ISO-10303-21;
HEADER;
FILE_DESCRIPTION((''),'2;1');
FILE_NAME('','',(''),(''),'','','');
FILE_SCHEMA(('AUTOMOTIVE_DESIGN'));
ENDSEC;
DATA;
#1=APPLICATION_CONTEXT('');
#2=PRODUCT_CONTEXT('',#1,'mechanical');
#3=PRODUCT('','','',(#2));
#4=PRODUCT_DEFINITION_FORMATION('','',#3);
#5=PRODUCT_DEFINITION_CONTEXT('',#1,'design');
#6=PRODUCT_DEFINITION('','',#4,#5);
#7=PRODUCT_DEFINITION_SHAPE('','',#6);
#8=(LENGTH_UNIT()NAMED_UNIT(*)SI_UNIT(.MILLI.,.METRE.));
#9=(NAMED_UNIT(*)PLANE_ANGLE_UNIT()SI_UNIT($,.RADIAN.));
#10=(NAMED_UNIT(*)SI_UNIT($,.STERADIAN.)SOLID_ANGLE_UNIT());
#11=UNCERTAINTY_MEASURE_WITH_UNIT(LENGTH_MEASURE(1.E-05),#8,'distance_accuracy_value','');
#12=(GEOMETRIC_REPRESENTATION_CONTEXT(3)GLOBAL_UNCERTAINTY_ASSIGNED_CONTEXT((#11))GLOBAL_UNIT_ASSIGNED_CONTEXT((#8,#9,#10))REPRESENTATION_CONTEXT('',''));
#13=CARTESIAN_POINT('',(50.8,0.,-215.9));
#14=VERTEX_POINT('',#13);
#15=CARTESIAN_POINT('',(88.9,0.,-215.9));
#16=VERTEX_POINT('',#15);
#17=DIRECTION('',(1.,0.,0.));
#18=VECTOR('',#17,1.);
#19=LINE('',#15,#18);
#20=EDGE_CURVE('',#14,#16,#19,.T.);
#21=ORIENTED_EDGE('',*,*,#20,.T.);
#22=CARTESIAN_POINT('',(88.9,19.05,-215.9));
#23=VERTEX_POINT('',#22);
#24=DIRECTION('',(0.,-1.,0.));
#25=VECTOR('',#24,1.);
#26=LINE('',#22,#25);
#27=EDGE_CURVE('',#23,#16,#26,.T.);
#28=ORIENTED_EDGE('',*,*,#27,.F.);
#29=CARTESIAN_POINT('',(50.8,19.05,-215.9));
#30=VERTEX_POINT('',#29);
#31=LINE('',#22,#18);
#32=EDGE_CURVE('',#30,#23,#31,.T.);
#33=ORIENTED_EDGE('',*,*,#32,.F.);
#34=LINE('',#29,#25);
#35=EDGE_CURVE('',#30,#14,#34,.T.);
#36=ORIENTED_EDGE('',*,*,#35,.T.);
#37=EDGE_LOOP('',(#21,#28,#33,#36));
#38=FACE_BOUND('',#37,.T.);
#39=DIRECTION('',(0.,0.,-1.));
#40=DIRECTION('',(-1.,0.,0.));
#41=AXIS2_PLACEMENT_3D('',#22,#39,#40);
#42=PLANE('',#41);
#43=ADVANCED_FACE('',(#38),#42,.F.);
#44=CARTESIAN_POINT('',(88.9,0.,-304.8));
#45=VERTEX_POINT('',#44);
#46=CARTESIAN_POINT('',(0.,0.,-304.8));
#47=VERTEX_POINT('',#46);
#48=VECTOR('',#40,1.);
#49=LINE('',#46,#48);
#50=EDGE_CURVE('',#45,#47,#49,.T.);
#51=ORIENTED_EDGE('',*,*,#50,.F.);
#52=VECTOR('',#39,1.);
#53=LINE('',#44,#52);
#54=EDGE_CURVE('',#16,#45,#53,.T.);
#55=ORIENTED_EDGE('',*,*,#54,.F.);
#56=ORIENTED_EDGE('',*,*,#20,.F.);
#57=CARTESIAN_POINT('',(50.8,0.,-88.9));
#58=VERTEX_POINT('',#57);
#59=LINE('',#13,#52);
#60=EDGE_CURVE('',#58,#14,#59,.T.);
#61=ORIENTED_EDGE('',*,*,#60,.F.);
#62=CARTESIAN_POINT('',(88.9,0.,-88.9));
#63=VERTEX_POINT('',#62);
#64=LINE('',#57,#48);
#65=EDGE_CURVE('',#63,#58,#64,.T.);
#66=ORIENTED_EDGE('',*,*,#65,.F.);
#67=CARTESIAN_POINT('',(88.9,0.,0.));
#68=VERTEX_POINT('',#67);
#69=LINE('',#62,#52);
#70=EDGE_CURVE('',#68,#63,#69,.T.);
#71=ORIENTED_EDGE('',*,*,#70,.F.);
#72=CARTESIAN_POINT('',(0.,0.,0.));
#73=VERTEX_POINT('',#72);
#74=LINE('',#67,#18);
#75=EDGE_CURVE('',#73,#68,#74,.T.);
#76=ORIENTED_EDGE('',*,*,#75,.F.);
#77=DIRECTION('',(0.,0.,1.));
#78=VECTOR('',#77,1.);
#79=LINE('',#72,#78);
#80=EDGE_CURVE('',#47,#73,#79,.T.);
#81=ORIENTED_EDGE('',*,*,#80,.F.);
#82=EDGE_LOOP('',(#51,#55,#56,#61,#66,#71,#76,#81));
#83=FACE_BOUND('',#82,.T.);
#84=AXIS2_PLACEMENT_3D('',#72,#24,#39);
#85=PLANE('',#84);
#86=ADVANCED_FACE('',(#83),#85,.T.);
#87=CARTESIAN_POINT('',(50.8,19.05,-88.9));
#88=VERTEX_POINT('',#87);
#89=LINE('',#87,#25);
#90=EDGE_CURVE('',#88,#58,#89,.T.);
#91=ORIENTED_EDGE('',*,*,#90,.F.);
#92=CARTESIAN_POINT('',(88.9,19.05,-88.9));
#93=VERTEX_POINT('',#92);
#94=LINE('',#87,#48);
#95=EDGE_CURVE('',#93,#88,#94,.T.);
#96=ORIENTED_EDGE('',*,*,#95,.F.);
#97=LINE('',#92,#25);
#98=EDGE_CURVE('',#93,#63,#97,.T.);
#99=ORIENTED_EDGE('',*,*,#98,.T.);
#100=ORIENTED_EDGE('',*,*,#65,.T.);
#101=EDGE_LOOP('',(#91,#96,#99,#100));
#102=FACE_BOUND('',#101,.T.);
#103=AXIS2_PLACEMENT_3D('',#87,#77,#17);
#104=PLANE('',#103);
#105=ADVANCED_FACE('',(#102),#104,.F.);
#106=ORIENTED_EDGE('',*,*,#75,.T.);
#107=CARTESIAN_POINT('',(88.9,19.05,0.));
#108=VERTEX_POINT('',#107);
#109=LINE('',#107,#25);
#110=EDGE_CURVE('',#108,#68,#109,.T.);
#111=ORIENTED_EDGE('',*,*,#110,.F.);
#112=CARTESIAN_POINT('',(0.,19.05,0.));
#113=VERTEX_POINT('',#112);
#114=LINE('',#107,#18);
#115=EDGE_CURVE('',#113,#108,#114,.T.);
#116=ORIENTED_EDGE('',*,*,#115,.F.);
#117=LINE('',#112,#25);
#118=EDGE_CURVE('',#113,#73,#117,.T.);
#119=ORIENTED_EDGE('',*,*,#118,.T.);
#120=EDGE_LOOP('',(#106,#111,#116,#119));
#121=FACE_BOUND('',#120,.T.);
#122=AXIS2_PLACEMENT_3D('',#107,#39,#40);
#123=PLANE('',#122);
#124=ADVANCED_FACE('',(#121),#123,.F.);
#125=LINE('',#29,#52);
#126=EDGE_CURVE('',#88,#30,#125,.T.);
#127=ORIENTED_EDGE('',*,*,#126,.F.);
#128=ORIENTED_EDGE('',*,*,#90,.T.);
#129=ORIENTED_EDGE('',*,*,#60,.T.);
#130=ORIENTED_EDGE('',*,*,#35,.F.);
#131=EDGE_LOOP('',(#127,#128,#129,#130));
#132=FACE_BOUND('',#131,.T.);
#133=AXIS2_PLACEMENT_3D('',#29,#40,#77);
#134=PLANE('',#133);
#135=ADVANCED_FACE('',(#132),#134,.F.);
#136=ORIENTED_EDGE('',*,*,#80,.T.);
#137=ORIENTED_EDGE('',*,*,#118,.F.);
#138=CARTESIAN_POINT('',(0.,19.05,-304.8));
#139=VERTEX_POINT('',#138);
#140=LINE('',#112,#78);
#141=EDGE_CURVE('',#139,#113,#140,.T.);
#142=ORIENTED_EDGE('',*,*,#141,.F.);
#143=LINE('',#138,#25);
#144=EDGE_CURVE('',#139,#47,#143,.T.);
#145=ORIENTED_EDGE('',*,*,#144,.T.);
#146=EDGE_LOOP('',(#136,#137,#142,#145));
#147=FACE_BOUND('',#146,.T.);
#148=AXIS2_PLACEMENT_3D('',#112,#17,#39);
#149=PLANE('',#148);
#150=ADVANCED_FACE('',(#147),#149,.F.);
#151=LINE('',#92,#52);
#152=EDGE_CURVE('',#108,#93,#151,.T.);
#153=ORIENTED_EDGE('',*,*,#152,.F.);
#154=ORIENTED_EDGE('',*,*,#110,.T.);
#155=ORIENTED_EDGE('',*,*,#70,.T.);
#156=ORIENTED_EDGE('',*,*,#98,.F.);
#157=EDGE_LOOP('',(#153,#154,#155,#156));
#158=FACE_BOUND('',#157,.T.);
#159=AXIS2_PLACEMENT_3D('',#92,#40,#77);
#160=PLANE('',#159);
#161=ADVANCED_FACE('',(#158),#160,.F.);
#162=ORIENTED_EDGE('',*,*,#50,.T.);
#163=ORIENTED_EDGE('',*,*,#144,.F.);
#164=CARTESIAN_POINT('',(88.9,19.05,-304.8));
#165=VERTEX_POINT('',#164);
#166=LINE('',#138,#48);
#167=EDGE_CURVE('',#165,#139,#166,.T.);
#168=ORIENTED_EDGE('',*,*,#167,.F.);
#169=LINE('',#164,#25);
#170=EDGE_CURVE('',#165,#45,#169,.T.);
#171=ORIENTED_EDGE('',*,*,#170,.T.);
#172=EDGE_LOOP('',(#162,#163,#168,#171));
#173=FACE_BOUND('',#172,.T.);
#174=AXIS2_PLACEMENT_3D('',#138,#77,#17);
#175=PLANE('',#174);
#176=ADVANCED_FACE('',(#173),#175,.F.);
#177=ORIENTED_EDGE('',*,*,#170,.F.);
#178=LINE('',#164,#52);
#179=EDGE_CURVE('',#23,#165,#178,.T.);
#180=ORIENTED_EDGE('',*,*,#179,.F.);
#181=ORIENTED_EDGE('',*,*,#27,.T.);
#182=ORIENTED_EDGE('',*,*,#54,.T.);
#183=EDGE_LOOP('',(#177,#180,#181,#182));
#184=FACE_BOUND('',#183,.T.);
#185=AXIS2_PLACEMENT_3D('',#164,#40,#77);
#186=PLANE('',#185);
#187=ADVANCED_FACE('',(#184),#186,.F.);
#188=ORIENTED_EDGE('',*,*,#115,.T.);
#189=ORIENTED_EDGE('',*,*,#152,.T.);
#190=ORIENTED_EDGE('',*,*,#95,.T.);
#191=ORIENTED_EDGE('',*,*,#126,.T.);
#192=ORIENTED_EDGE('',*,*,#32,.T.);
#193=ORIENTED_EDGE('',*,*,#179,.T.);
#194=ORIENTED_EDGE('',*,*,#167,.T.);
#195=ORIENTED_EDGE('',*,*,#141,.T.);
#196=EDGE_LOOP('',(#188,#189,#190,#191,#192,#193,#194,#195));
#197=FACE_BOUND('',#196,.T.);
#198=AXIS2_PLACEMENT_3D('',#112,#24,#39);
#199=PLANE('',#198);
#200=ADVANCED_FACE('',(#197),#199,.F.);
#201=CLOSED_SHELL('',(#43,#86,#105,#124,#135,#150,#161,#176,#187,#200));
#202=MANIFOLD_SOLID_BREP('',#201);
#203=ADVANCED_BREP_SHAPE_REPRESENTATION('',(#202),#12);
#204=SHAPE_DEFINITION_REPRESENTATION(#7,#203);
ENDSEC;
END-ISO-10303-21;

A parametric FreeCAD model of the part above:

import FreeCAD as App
import Part
import Sketcher

V = App.Vector
Q = App.Units.Quantity


def add_polygon(sketch, points):
    """Adds a closed chain of lines whose ends are joined by coincident constraints."""
    first, n = sketch.GeometryCount, len(points)
    for a, b in zip(points, points[1:] + points[:1]):
        sketch.addGeometry(Part.LineSegment(App.Vector(*a, 0), App.Vector(*b, 0)), False)
    for i in range(n):
        sketch.addConstraint(Sketcher.Constraint("Coincident", first + i, 2, first + (i + 1) % n, 1))

doc = App.newDocument("Part")
body = doc.addObject("PartDesign::Body", "Body")

sketch1 = body.newObject("Sketcher::SketchObject", "Sketch")
sketch1.AttachmentSupport = (doc.getObject("XZ_Plane"), [""])
sketch1.MapMode = "FlatFace"
add_polygon(sketch1, [(0, -305), (0, 0), (89, 0), (89, -89), (51, -89), (51, -216), (89, -216), (89, -305)])
sketch1.addConstraint(Sketcher.Constraint("Vertical", 0))
sketch1.addConstraint(Sketcher.Constraint("Horizontal", 1))
sketch1.addConstraint(Sketcher.Constraint("Vertical", 2))
sketch1.addConstraint(Sketcher.Constraint("Horizontal", 3))
sketch1.addConstraint(Sketcher.Constraint("Vertical", 4))
sketch1.addConstraint(Sketcher.Constraint("Horizontal", 5))
sketch1.addConstraint(Sketcher.Constraint("Vertical", 6))
sketch1.addConstraint(Sketcher.Constraint("Horizontal", 7))
sketch1.addConstraint(Sketcher.Constraint("Coincident", 0, 2, -1, 1))
sketch1.addConstraint(Sketcher.Constraint("Vertical", 2, 2, 5, 2))
sketch1.addConstraint(Sketcher.Constraint("Equal", 7, 2))
sketch1.addConstraint(Sketcher.Constraint("Equal", 2, 6))
sketch1.addConstraint(Sketcher.Constraint("DistanceY", 0, 1, 0, 2, Q("12 in")))
sketch1.addConstraint(Sketcher.Constraint("DistanceY", 4, 2, 4, 1, Q("5 in")))
sketch1.addConstraint(Sketcher.Constraint("DistanceX", 3, 2, 3, 1, Q("1.5 in")))
pad1 = body.newObject("PartDesign::Pad", "Pad")
pad1.Profile = sketch1
pad1.Length = Q("0.75 in")
pad1.Reversed = True

doc.recompute()
